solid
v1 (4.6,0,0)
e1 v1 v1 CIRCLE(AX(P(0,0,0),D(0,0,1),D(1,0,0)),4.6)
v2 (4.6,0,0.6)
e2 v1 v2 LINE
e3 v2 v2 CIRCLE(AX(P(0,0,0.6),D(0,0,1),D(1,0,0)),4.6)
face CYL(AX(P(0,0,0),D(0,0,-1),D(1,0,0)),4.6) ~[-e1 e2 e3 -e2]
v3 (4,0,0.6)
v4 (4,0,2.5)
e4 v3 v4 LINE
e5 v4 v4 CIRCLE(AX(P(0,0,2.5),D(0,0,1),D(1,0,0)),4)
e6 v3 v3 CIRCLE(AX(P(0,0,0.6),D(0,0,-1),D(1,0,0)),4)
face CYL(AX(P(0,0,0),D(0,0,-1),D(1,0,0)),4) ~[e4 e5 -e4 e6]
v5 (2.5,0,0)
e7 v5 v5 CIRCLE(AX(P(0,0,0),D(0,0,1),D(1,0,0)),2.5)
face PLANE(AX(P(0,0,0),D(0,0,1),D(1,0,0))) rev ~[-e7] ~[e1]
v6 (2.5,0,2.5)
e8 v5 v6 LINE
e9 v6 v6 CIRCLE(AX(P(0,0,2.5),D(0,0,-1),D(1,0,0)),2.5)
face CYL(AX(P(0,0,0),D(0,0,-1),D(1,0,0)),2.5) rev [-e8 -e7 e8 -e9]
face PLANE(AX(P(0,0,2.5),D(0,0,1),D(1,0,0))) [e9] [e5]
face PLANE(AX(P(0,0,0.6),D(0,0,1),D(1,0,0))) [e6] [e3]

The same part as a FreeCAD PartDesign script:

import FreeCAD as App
import Part
import Sketcher

doc = App.newDocument("Part")
body = doc.addObject("PartDesign::Body", "Body")

sketch1 = body.newObject("Sketcher::SketchObject", "Sketch")
sketch1.AttachmentSupport = (doc.getObject("XY_Plane"), [""])
sketch1.MapMode = "FlatFace"
sketch1.addGeometry(Part.Circle(App.Vector(0, 0, 0), App.Vector(0, 0, 1), 2.5), False)
sketch1.addConstraint(Sketcher.Constraint("Coincident", 0, 3, -1, 1))
sketch1.addConstraint(Sketcher.Constraint("Diameter", 0, 5.0))
pad1 = body.newObject("PartDesign::Pad", "Pad")
pad1.Profile = sketch1
pad1.Length = 6
body2 = doc.addObject("PartDesign::Body", "Body001")

sketch2 = body2.newObject("Sketcher::SketchObject", "Sketch001")
sketch2.AttachmentSupport = (doc.getObject("XY_Plane001"), [""])
sketch2.MapMode = "FlatFace"
sketch2.addGeometry(Part.Circle(App.Vector(0, 0, 0), App.Vector(0, 0, 1), 4.6), False)
sketch2.addConstraint(Sketcher.Constraint("Coincident", 0, 3, -1, 1))
sketch2.addConstraint(Sketcher.Constraint("Diameter", 0, 9.2))
pad2 = body2.newObject("PartDesign::Pad", "Pad001")
pad2.Profile = sketch2
pad2.Length = 0.6
body3 = doc.addObject("PartDesign::Body", "Body002")

sketch3 = body3.newObject("Sketcher::SketchObject", "Sketch002")
sketch3.AttachmentSupport = (doc.getObject("XY_Plane002"), [""])
sketch3.MapMode = "FlatFace"
sketch3.addGeometry(Part.Circle(App.Vector(0, 0, 0), App.Vector(0, 0, 1), 4), False)
sketch3.addConstraint(Sketcher.Constraint("Coincident", 0, 3, -1, 1))
sketch3.addConstraint(Sketcher.Constraint("Diameter", 0, 8.0))
pad3 = body3.newObject("PartDesign::Pad", "Pad002")
pad3.Profile = sketch3
pad3.Length = 2.5
doc.recompute()

boolean = body3.newObject("PartDesign::Boolean", "Boolean")
boolean.Type = "Fuse"
boolean.addObjects([body2])
doc.recompute()

boolean2 = body3.newObject("PartDesign::Boolean", "Boolean001")
boolean2.Type = "Cut"
boolean2.addObjects([body])

doc.recompute()
